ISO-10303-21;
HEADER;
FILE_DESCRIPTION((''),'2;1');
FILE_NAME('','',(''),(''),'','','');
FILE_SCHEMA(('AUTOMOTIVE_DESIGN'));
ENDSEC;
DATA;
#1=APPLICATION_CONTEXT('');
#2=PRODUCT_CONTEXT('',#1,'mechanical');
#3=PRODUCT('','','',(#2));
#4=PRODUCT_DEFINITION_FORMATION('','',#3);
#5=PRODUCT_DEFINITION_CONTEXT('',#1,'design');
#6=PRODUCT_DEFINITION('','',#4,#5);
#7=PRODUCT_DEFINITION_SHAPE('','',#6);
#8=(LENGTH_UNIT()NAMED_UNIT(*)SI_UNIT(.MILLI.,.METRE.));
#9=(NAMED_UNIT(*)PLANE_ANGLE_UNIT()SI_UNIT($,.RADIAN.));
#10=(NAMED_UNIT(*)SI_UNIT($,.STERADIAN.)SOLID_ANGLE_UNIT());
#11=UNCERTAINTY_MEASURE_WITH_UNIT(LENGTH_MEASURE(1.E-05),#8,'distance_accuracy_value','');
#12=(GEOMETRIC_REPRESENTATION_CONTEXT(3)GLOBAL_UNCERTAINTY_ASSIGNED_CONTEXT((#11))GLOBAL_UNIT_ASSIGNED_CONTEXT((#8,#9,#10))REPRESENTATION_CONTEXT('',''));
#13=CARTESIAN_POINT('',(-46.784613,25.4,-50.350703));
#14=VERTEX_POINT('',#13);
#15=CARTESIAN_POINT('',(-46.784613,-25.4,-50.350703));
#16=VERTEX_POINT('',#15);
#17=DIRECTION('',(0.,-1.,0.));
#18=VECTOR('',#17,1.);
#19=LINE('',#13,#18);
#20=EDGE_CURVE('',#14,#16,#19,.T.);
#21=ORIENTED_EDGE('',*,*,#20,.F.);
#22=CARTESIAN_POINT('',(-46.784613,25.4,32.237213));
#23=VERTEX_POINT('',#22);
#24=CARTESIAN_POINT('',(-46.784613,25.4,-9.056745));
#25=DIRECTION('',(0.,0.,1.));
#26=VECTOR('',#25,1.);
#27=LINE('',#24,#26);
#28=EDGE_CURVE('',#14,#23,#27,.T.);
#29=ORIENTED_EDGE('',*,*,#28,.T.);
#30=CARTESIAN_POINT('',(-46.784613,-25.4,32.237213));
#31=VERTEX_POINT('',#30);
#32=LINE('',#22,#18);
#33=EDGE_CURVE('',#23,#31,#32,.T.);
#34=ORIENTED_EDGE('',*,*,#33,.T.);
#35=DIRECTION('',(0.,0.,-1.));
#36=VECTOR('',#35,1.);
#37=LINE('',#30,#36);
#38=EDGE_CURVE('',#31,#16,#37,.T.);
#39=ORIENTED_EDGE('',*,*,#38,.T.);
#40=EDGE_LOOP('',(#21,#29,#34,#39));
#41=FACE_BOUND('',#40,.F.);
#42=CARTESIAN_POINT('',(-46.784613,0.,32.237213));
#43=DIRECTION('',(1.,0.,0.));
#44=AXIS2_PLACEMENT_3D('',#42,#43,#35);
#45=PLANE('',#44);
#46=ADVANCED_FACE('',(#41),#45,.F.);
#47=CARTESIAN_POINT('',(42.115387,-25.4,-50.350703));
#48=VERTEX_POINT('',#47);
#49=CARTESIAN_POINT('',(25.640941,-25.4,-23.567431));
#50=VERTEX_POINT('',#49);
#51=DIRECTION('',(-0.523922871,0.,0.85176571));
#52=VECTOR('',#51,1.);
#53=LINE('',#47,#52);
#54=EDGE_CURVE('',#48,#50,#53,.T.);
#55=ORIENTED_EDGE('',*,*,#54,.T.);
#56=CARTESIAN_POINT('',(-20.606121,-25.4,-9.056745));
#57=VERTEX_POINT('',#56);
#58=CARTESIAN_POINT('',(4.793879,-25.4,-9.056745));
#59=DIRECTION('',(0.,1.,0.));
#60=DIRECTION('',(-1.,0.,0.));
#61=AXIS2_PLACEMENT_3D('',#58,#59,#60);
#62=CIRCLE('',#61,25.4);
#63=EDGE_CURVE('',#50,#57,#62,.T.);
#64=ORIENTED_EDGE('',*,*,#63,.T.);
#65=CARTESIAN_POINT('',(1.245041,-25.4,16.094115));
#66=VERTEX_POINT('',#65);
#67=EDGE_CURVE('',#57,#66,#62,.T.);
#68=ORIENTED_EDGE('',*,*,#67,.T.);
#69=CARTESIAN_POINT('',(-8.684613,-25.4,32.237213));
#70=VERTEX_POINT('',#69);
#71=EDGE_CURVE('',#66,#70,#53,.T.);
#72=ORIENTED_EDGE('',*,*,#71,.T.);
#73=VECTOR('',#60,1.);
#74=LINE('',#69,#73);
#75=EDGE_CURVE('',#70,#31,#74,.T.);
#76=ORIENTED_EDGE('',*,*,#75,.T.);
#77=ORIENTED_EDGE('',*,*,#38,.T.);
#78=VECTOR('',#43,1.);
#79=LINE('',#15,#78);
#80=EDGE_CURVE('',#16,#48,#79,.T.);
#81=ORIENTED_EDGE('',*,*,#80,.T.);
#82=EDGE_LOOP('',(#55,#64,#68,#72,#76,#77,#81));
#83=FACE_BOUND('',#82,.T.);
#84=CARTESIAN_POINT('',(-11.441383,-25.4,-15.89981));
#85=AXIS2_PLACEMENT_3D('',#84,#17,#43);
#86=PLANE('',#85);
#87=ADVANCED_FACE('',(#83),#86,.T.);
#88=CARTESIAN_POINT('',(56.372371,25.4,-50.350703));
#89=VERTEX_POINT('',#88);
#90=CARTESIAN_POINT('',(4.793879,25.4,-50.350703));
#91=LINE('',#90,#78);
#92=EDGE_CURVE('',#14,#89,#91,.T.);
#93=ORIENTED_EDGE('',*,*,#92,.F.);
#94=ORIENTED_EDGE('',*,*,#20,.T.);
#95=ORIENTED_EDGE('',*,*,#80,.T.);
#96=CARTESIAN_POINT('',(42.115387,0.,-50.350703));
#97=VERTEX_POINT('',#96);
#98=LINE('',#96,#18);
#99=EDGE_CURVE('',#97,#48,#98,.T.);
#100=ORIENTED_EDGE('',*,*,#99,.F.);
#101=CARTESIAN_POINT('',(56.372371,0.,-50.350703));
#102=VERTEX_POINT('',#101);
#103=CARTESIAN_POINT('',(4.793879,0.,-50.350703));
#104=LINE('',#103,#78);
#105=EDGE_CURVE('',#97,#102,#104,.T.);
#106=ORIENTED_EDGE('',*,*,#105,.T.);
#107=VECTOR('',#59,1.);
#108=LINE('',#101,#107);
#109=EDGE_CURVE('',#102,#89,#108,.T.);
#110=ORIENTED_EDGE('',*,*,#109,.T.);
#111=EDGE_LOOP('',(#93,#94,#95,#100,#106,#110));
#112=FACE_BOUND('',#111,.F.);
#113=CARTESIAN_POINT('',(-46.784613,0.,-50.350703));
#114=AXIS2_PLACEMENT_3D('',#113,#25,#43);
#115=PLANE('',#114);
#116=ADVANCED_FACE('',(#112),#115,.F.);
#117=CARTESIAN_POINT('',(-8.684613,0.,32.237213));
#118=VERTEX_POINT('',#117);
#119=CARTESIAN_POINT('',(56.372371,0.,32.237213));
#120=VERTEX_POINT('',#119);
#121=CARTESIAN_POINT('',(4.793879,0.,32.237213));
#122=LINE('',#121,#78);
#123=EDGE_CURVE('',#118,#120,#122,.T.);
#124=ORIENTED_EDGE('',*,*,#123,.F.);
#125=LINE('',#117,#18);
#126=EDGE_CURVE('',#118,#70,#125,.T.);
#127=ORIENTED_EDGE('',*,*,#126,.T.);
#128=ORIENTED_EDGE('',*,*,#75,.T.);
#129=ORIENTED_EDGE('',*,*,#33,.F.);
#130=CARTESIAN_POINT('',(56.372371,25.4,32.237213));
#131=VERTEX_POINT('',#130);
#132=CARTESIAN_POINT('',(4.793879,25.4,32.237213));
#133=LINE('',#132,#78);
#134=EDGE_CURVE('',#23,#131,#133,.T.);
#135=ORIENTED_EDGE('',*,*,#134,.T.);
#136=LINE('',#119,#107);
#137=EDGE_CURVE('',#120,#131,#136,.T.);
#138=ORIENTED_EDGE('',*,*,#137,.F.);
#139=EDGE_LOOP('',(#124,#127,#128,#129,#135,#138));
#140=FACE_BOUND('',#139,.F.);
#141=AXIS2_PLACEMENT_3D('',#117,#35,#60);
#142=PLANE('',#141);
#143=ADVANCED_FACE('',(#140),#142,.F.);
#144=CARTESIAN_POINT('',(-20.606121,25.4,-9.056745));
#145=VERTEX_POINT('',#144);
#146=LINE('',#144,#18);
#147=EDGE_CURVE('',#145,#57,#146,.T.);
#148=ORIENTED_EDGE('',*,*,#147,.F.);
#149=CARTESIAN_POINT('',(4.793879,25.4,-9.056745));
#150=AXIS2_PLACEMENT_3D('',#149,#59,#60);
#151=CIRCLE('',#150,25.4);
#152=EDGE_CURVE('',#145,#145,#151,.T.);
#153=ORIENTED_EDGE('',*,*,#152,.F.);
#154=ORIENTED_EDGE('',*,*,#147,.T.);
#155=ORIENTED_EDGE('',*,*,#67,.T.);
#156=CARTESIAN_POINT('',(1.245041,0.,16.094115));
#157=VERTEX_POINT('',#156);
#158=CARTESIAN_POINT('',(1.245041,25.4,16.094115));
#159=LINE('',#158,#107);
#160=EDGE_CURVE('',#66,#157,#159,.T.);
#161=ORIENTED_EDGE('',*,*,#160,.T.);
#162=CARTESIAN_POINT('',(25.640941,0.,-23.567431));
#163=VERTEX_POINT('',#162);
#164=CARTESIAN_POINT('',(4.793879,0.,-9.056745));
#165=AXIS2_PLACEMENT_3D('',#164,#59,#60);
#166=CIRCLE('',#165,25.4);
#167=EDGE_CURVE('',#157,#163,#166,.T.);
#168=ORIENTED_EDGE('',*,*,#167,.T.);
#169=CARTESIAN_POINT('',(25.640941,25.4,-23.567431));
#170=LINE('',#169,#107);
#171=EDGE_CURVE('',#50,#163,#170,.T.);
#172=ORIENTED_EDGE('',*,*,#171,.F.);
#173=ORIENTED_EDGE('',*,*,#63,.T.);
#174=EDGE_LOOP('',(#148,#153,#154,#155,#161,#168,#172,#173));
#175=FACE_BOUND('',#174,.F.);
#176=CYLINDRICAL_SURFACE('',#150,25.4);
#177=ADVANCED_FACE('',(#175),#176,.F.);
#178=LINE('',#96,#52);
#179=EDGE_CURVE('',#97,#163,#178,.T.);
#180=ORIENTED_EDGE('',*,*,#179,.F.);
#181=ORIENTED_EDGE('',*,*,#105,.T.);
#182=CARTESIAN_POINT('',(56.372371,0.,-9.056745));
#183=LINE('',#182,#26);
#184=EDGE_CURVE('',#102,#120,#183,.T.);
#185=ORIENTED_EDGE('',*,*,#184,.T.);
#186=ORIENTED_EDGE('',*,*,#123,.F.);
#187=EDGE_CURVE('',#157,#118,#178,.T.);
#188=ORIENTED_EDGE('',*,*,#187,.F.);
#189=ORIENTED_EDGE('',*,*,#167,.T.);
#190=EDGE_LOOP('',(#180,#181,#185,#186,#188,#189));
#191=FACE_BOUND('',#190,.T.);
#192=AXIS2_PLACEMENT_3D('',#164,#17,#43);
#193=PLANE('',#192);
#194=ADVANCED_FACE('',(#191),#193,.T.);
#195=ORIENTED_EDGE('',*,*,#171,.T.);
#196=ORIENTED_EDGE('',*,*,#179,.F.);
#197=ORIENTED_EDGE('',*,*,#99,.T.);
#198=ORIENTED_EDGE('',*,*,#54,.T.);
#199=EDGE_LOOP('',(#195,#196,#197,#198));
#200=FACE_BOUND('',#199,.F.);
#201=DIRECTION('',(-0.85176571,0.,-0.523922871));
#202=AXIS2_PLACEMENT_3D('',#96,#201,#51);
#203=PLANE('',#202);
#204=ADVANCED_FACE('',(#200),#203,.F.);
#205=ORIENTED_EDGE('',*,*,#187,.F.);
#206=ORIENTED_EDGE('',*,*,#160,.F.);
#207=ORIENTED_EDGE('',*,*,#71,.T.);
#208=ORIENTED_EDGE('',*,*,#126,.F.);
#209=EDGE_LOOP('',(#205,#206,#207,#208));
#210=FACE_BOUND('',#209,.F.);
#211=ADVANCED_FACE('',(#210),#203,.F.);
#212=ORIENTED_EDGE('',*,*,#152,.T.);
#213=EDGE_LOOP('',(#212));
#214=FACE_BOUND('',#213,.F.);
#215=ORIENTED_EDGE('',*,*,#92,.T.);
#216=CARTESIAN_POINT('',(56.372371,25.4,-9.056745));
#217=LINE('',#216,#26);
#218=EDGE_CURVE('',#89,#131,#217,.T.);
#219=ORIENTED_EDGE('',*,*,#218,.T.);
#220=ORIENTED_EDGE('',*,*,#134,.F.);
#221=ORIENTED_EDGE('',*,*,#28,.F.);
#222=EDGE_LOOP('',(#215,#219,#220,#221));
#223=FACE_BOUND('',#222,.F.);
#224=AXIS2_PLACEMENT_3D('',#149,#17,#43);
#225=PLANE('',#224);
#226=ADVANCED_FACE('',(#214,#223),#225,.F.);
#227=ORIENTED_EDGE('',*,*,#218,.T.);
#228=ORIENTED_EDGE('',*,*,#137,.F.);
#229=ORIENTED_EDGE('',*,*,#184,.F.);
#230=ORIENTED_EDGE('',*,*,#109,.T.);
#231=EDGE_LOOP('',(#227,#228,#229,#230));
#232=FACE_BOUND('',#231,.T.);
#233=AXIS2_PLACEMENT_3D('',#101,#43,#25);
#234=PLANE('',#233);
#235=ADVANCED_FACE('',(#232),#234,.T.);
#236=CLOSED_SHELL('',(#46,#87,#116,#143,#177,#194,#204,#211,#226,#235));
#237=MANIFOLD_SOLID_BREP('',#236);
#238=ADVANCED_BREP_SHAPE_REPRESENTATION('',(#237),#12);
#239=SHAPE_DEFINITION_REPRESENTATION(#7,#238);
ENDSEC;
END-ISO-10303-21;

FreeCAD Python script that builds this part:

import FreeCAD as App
import Part
import Sketcher

V = App.Vector
Q = App.Units.Quantity

doc = App.newDocument("Part")
params = doc.addObject("Spreadsheet::Sheet", "Params")
for row, (alias, value) in enumerate([
    ("pad1_length", "1 in"),
    ("sketch2_width", "1.5 in"),
    ("sketch2_width2", "3.5 in"),
    ("pad2_length", "1 in"),
    ("sketch3_diameter", "2 in"),
    ("pocket1_length", "5 in"),
], start=1):
    params.set(f"A{row}", alias)
    params.set(f"B{row}", "=" + value)
    params.setAlias(f"B{row}", alias)

body = doc.addObject("PartDesign::Body", "Body")

sketch1 = body.newObject("Sketcher::SketchObject", "Sketch")
sketch1.AttachmentSupport = (doc.getObject("XZ_Plane"), [""])
sketch1.MapMode = "FlatFace"
sketch1.addGeometry([
    Part.LineSegment(V(-47, 32, 0), V(-47, -50, 0)),
    Part.LineSegment(V(-47, -50, 0), V(56, -50, 0)),
    Part.LineSegment(V(56, -50, 0), V(56, 32, 0)),
    Part.LineSegment(V(56, 32, 0), V(-47, 32, 0)),
], False)
sketch1.addConstraint([
    Sketcher.Constraint("Coincident", 0, 2, 1, 1),
    Sketcher.Constraint("Coincident", 1, 2, 2, 1),
    Sketcher.Constraint("Coincident", 2, 2, 3, 1),
    Sketcher.Constraint("Coincident", 3, 2, 0, 1),
    Sketcher.Constraint("Vertical", 0),
    Sketcher.Constraint("Horizontal", 1),
    Sketcher.Constraint("Vertical", 2),
    Sketcher.Constraint("Horizontal", 3),
    Sketcher.Constraint("DistanceX", 1, 1, 1, 2, 103.156984),
    Sketcher.Constraint("DistanceY", 0, 2, 0, 1, 82.587916),
    Sketcher.Constraint("DistanceX", -1, 1, 1, 2, 56.372371),
    Sketcher.Constraint("DistanceY", 0, 2, -1, 1, 50.350703),
])
pad1 = body.newObject("PartDesign::Pad", "Pad")
pad1.Profile = sketch1
pad1.setExpression("Length", "Params.pad1_length")
pad1.Reversed = True

sketch2 = body.newObject("Sketcher::SketchObject", "Sketch001")
sketch2.AttachmentSupport = (doc.getObject("XZ_Plane"), [""])
sketch2.MapMode = "FlatFace"
sketch2.addGeometry([
    Part.LineSegment(V(-9, 32, 0), V(-47, 32, 0)),
    Part.LineSegment(V(-47, 32, 0), V(-47, -50, 0)),
    Part.LineSegment(V(-47, -50, 0), V(42, -50, 0)),
    Part.LineSegment(V(42, -50, 0), V(-9, 32, 0)),
], False)
sketch2.addConstraint([
    Sketcher.Constraint("Coincident", 0, 2, 1, 1),
    Sketcher.Constraint("Coincident", 1, 2, 2, 1),
    Sketcher.Constraint("Coincident", 2, 2, 3, 1),
    Sketcher.Constraint("Coincident", 3, 2, 0, 1),
    Sketcher.Constraint("Horizontal", 0),
    Sketcher.Constraint("Vertical", 1),
    Sketcher.Constraint("Horizontal", 2),
    Sketcher.Constraint("DistanceX", 0, 2, 0, 1, Q("1.5 in")),
    Sketcher.Constraint("DistanceX", 2, 1, 2, 2, Q("3.5 in")),
    Sketcher.Constraint("DistanceY", 1, 2, 1, 1, 82.587916),
    Sketcher.Constraint("DistanceX", 0, 2, -1, 1, 46.784613),
    Sketcher.Constraint("DistanceY", -1, 1, 0, 2, 32.237213),
])
sketch2.setExpression("Constraints[7]", "Params.sketch2_width")
sketch2.setExpression("Constraints[8]", "Params.sketch2_width2")
pad2 = body.newObject("PartDesign::Pad", "Pad001")
pad2.Profile = sketch2
pad2.setExpression("Length", "Params.pad2_length")

sketch3 = body.newObject("Sketcher::SketchObject", "Sketch002")
sketch3.AttachmentSupport = (doc.getObject("XZ_Plane"), [""])
sketch3.MapMode = "FlatFace"
sketch3.AttachmentOffset = App.Placement(V(0, 0, -1 * 25.4), App.Rotation())
sketch3.addGeometry(Part.Circle(V(5, -9, 0), V(0, 0, 1), 25), False)
sketch3.addConstraint([
    Sketcher.Constraint("Diameter", 0, Q("2 in")),
    Sketcher.Constraint("DistanceX", -1, 1, 0, 3, 4.793879),
    Sketcher.Constraint("DistanceY", 0, 3, -1, 1, 9.056745),
])
sketch3.setExpression("Constraints[0]", "Params.sketch3_diameter")
pocket1 = body.newObject("PartDesign::Pocket", "Pocket")
pocket1.Profile = sketch3
pocket1.setExpression("Length", "Params.pocket1_length")
pocket1.Reversed = True

doc.recompute()
